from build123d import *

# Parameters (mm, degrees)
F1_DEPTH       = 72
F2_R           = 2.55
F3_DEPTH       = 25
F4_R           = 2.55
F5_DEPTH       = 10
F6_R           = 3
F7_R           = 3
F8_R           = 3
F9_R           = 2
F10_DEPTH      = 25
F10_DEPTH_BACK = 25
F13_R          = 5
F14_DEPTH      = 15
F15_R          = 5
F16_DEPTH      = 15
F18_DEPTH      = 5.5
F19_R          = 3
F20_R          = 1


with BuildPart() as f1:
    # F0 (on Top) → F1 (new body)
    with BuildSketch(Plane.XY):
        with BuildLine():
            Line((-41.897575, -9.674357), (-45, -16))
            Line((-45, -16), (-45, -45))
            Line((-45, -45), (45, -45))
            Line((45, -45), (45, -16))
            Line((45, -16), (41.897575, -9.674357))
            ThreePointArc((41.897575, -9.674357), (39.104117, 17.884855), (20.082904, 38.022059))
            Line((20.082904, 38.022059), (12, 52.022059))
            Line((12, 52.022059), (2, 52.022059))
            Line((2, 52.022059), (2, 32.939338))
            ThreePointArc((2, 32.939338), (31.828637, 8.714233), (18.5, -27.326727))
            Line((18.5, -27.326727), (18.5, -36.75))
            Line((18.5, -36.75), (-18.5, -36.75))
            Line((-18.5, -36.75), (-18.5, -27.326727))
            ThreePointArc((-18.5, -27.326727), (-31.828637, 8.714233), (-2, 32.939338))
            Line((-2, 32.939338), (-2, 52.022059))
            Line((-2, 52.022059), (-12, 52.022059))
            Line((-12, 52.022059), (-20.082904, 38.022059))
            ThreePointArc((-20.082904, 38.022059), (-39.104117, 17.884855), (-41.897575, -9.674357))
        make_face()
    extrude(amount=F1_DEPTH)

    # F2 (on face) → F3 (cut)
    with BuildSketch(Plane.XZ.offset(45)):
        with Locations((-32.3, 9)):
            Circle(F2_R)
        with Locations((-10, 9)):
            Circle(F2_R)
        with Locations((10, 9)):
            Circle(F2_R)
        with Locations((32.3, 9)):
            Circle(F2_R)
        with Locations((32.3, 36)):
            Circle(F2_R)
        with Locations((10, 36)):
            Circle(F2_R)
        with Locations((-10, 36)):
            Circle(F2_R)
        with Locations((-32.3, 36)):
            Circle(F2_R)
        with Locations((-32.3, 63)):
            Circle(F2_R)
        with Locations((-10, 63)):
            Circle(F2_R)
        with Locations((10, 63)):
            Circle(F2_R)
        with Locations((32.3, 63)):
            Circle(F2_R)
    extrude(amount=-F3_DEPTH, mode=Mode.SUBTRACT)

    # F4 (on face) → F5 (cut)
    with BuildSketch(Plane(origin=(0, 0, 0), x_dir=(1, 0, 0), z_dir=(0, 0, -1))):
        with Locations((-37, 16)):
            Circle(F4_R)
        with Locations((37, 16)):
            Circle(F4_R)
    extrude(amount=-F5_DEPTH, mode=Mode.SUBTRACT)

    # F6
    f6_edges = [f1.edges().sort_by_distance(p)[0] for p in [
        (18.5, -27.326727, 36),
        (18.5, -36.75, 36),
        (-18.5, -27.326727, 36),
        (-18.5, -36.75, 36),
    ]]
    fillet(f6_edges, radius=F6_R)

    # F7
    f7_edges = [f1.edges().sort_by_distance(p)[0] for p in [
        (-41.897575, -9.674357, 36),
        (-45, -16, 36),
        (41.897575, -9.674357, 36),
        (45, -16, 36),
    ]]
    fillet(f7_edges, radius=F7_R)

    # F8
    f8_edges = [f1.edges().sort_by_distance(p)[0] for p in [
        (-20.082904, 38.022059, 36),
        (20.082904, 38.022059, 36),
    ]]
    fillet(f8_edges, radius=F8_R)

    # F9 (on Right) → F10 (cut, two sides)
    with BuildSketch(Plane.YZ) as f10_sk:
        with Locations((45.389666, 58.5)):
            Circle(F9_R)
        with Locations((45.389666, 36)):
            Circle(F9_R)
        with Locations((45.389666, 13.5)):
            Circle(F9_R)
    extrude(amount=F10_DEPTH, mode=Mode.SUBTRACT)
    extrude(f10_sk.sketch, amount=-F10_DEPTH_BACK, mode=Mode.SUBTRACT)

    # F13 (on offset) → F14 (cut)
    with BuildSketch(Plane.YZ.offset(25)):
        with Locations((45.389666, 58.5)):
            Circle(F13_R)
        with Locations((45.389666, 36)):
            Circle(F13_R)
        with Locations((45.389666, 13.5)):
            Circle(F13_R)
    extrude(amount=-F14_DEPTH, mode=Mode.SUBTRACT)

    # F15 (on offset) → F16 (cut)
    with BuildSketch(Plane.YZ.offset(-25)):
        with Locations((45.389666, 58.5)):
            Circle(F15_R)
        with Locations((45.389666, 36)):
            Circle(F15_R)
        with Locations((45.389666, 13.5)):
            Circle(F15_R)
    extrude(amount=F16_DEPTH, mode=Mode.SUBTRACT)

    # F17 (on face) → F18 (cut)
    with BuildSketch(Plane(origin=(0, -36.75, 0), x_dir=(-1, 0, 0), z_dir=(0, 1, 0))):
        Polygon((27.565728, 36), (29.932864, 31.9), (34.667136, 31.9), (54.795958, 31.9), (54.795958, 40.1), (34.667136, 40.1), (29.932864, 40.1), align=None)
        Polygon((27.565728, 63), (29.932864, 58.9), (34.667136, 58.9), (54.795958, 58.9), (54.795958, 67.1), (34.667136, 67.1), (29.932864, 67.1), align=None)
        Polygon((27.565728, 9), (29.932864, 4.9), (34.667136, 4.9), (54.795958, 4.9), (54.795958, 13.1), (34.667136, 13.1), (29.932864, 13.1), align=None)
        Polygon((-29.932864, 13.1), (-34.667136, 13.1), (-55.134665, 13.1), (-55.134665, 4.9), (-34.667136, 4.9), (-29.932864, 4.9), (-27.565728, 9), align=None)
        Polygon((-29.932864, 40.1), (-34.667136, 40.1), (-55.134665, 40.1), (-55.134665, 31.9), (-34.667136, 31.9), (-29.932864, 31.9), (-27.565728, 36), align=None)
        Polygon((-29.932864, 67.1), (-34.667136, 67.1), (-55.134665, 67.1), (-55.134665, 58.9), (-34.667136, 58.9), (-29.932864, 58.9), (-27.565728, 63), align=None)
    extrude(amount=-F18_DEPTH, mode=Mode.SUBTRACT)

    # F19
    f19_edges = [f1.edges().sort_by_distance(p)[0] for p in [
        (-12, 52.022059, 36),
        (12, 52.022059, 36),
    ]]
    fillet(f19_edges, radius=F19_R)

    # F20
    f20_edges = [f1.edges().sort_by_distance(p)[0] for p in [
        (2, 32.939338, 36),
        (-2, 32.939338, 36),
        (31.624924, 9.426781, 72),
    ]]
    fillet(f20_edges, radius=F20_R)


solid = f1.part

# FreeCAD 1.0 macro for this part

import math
import FreeCAD as App
import Part
import Sketcher
from FreeCAD import Vector
Q = App.Units.Quantity


def edges_at(feature, points):
    """Names of the edges that pass closest to the given points."""
    edges = feature.Shape.Edges
    near = lambda p: min(range(len(edges)), key=lambda i: edges[i].distToShape(Part.Vertex(*p))[0])
    return sorted({f"Edge{near(p) + 1}" for p in points})


def add_polygon(sketch, points):
    """Adds a closed chain of lines whose ends are joined by coincident constraints."""
    first, n = sketch.GeometryCount, len(points)
    for a, b in zip(points, points[1:] + points[:1]):
        sketch.addGeometry(Part.LineSegment(App.Vector(*a, 0), App.Vector(*b, 0)), False)
    for i in range(n):
        sketch.addConstraint(Sketcher.Constraint("Coincident", first + i, 2, first + (i + 1) % n, 1))

doc = App.newDocument("Part")
body = doc.addObject("PartDesign::Body", "Body")

# Sketch on XY plane
sketch1 = body.newObject("Sketcher::SketchObject", "Sketch")
sketch1.AttachmentSupport = (doc.getObject("XY_Plane"), [""])
sketch1.MapMode = "FlatFace"
sketch1.addGeometry([
    Part.LineSegment(Vector(-42, -10, 0), Vector(-45, -16, 0)),  # 0
    Part.LineSegment(Vector(-45, -16, 0), Vector(-45, -45, 0)),  # 1
    Part.LineSegment(Vector(-45, -45, 0), Vector(45, -45, 0)),  # 2
    Part.LineSegment(Vector(45, -45, 0), Vector(45, -16, 0)),  # 3
    Part.LineSegment(Vector(45, -16, 0), Vector(42, -10, 0)),  # 4
    Part.ArcOfCircle(Part.Circle(Vector(0, 0, 0), Vector(0, 0, 1), 43), math.radians(-13), math.radians(62)),  # 5
    Part.LineSegment(Vector(20, 38, 0), Vector(12, 52, 0)),  # 6
    Part.LineSegment(Vector(12, 52, 0), Vector(2, 52, 0)),  # 7
    Part.LineSegment(Vector(2, 52, 0), Vector(2, 33, 0)),  # 8
    Part.ArcOfCircle(Part.Circle(Vector(0, 0, 0), Vector(0, 0, 1), 33), math.radians(-56), math.radians(87)),  # 9
    Part.LineSegment(Vector(18, -27, 0), Vector(18, -37, 0)),  # 10
    Part.LineSegment(Vector(18, -37, 0), Vector(-18, -37, 0)),  # 11
    Part.LineSegment(Vector(-18, -37, 0), Vector(-18, -27, 0)),  # 12
    Part.ArcOfCircle(Part.Circle(Vector(0, 0, 0), Vector(0, 0, 1), 33), math.radians(93), math.radians(236)),  # 13
    Part.LineSegment(Vector(-2, 33, 0), Vector(-2, 52, 0)),  # 14
    Part.LineSegment(Vector(-2, 52, 0), Vector(-12, 52, 0)),  # 15
    Part.LineSegment(Vector(-12, 52, 0), Vector(-20, 38, 0)),  # 16
    Part.ArcOfCircle(Part.Circle(Vector(0, 0, 0), Vector(0, 0, 1), 43), math.radians(118), math.radians(193)),  # 17
], False)
sketch1.addConstraint([
    Sketcher.Constraint("Coincident", 0, 2, 1, 1),
    Sketcher.Constraint("Coincident", 1, 2, 2, 1),
    Sketcher.Constraint("Coincident", 2, 2, 3, 1),
    Sketcher.Constraint("Coincident", 3, 2, 4, 1),
    Sketcher.Constraint("Coincident", 4, 2, 5, 1),
    Sketcher.Constraint("Coincident", 5, 2, 6, 1),
    Sketcher.Constraint("Coincident", 6, 2, 7, 1),
    Sketcher.Constraint("Coincident", 7, 2, 8, 1),
    Sketcher.Constraint("Coincident", 8, 2, 9, 2),
    Sketcher.Constraint("Coincident", 9, 1, 10, 1),
    Sketcher.Constraint("Coincident", 10, 2, 11, 1),
    Sketcher.Constraint("Coincident", 11, 2, 12, 1),
    Sketcher.Constraint("Coincident", 12, 2, 13, 2),
    Sketcher.Constraint("Coincident", 13, 1, 14, 1),
    Sketcher.Constraint("Coincident", 14, 2, 15, 1),
    Sketcher.Constraint("Coincident", 15, 2, 16, 1),
    Sketcher.Constraint("Coincident", 16, 2, 17, 1),
    Sketcher.Constraint("Coincident", 17, 2, 0, 1),
    Sketcher.Constraint("Vertical", 1),
    Sketcher.Constraint("Horizontal", 2),
    Sketcher.Constraint("Vertical", 3),
    Sketcher.Constraint("Horizontal", 7),
    Sketcher.Constraint("Vertical", 8),
    Sketcher.Constraint("Vertical", 10),
    Sketcher.Constraint("Horizontal", 11),
    Sketcher.Constraint("Vertical", 12),
    Sketcher.Constraint("Vertical", 14),
    Sketcher.Constraint("Horizontal", 15),
    Sketcher.Constraint("Coincident", 5, 3, -1, 1),
    Sketcher.Constraint("Coincident", 9, 3, -1, 1),
    Sketcher.Constraint("Coincident", 13, 3, -1, 1),
    Sketcher.Constraint("Coincident", 17, 3, -1, 1),
    Sketcher.Constraint("Equal", 9, 13),
    Sketcher.Constraint("Equal", 5, 17),
    Sketcher.Constraint("Symmetric", 0, 2, 3, 2, -2),
    Sketcher.Constraint("Symmetric", 7, 2, 14, 2, -2),
    Sketcher.Constraint("Horizontal", 9, 1, 12, 2),
    Sketcher.Constraint("Horizontal", 5, 2, 16, 2),
    Sketcher.Constraint("Horizontal", 4, 2, 17, 2),
    Sketcher.Constraint("Equal", 7, 15),
    Sketcher.Constraint("Radius", 5, Q("42.999999 mm")),
    Sketcher.Constraint("Radius", 9, Q("33 mm")),
    Sketcher.Constraint("DistanceX", 2, 1, 2, 2, Q("90 mm")),
    Sketcher.Constraint("DistanceX", 7, 2, 7, 1, Q("10 mm")),
    Sketcher.Constraint("DistanceX", 11, 2, 11, 1, Q("37 mm")),
    Sketcher.Constraint("DistanceY", 1, 2, 1, 1, Q("29 mm")),
    Sketcher.Constraint("Angle", 6, Q("120.000001 deg")),
    Sketcher.Constraint("DistanceY", 0, 2, -1, 1, Q("16 mm")),
    Sketcher.Constraint("DistanceX", -1, 1, 6, 2, Q("12 mm")),
    Sketcher.Constraint("DistanceY", 5, 2, 6, 2, Q("14 mm")),
    Sketcher.Constraint("DistanceY", 10, 2, -1, 1, Q("36.75 mm")),
    Sketcher.Constraint("Distance", 0, Q("7.045481 mm")),
])
pad1 = body.newObject("PartDesign::Pad", "Pad")
pad1.Profile = sketch1
pad1.Length = 72

# Sketch on XZ plane
sketch2 = body.newObject("Sketcher::SketchObject", "Sketch001")
sketch2.AttachmentSupport = (doc.getObject("XZ_Plane"), [""])
sketch2.MapMode = "FlatFace"
sketch2.AttachmentOffset = App.Placement(Vector(0, 0, 45), App.Rotation())
sketch2.addGeometry([
    Part.Circle(Vector(-32.3, 9, 0), Vector(0, 0, 1), 2.5),  # 0
    Part.Circle(Vector(-10, 9, 0), Vector(0, 0, 1), 2.5),  # 1
    Part.Circle(Vector(10, 9, 0), Vector(0, 0, 1), 2.5),  # 2
    Part.Circle(Vector(32.3, 9, 0), Vector(0, 0, 1), 2.5),  # 3
    Part.Circle(Vector(32.3, 36, 0), Vector(0, 0, 1), 2.5),  # 4
    Part.Circle(Vector(10, 36, 0), Vector(0, 0, 1), 2.5),  # 5
    Part.Circle(Vector(-10, 36, 0), Vector(0, 0, 1), 2.5),  # 6
    Part.Circle(Vector(-32.3, 36, 0), Vector(0, 0, 1), 2.5),  # 7
    Part.Circle(Vector(-32.3, 63, 0), Vector(0, 0, 1), 2.5),  # 8
    Part.Circle(Vector(-10, 63, 0), Vector(0, 0, 1), 2.5),  # 9
    Part.Circle(Vector(10, 63, 0), Vector(0, 0, 1), 2.5),  # 10
    Part.Circle(Vector(32.3, 63, 0), Vector(0, 0, 1), 2.5),  # 11
], False)
sketch2.addConstraint([
    Sketcher.Constraint("Equal", 0, 1),
    Sketcher.Constraint("Equal", 1, 2),
    Sketcher.Constraint("Equal", 2, 3),
    Sketcher.Constraint("Equal", 3, 4),
    Sketcher.Constraint("Equal", 4, 5),
    Sketcher.Constraint("Equal", 5, 6),
    Sketcher.Constraint("Equal", 6, 7),
    Sketcher.Constraint("Equal", 7, 8),
    Sketcher.Constraint("Equal", 8, 9),
    Sketcher.Constraint("Equal", 9, 10),
    Sketcher.Constraint("Equal", 10, 11),
    Sketcher.Constraint("Symmetric", 1, 3, 2, 3, -2),
    Sketcher.Constraint("Symmetric", 0, 3, 3, 3, -2),
    Sketcher.Constraint("Symmetric", 5, 3, 6, 3, -2),
    Sketcher.Constraint("Symmetric", 4, 3, 7, 3, -2),
    Sketcher.Constraint("Symmetric", 9, 3, 10, 3, -2),
    Sketcher.Constraint("Symmetric", 8, 3, 11, 3, -2),
    Sketcher.Constraint("Horizontal", 0, 3, 1, 3),
    Sketcher.Constraint("Horizontal", 4, 3, 5, 3),
    Sketcher.Constraint("Horizontal", 8, 3, 9, 3),
    Sketcher.Constraint("Vertical", 3, 3, 4, 3),
    Sketcher.Constraint("Vertical", 2, 3, 5, 3),
    Sketcher.Constraint("Vertical", 7, 3, 8, 3),
    Sketcher.Constraint("Vertical", 6, 3, 9, 3),
    Sketcher.Constraint("Diameter", 0, Q("5.1 mm")),
    Sketcher.Constraint("DistanceY", -1, 1, 0, 3, Q("9 mm")),
    Sketcher.Constraint("DistanceX", 1, 3, -1, 1, Q("10 mm")),
    Sketcher.Constraint("DistanceY", -1, 1, 4, 3, Q("36 mm")),
    Sketcher.Constraint("DistanceY", -1, 1, 8, 3, Q("63 mm")),
    Sketcher.Constraint("DistanceX", 0, 3, -1, 1, Q("32.3 mm")),
])
pocket1 = body.newObject("PartDesign::Pocket", "Pocket")
pocket1.Profile = sketch2
pocket1.Length = 25

# Sketch on XY plane
sketch3 = body.newObject("Sketcher::SketchObject", "Sketch002")
sketch3.AttachmentSupport = (doc.getObject("XY_Plane"), [""])
sketch3.MapMode = "FlatFace"
sketch3.addGeometry([
    Part.Circle(Vector(-37, -16, 0), Vector(0, 0, 1), 2.5),
    Part.Circle(Vector(37, -16, 0), Vector(0, 0, 1), 2.5),
], False)
sketch3.addConstraint([
    Sketcher.Constraint("Equal", 0, 1),
    Sketcher.Constraint("Symmetric", 0, 3, 1, 3, -2),
    Sketcher.Constraint("Diameter", 0, Q("5.1 mm")),
    Sketcher.Constraint("DistanceX", 0, 3, -1, 1, Q("37 mm")),
    Sketcher.Constraint("DistanceY", 0, 3, -1, 1, Q("16 mm")),
])
pocket2 = body.newObject("PartDesign::Pocket", "Pocket001")
pocket2.Profile = sketch3
pocket2.Length = 10
pocket2.Reversed = True
doc.recompute()

fillet = body.newObject("PartDesign::Fillet", "Fillet")
fillet.Base = (pocket2, edges_at(pocket2, [
    (18.5, -27.327, 36),
    (18.5, -36.75, 36),
    (-18.5, -27.327, 36),
    (-18.5, -36.75, 36),
]))
fillet.Radius = 3
doc.recompute()

fillet2 = body.newObject("PartDesign::Fillet", "Fillet001")
fillet2.Base = (fillet, edges_at(fillet, [
    (-41.898, -9.674, 36),
    (-45, -16, 36),
    (41.898, -9.674, 36),
    (45, -16, 36),
]))
fillet2.Radius = 3
doc.recompute()

fillet3 = body.newObject("PartDesign::Fillet", "Fillet002")
fillet3.Base = (fillet2, edges_at(fillet2, [(-20.083, 38.022, 36), (20.083, 38.022, 36)]))
fillet3.Radius = 3

# Sketch on YZ plane
sketch4 = body.newObject("Sketcher::SketchObject", "Sketch003")
sketch4.AttachmentSupport = (doc.getObject("YZ_Plane"), [""])
sketch4.MapMode = "FlatFace"
sketch4.addGeometry([
    Part.Circle(Vector(45.4, 58.5, 0), Vector(0, 0, 1), 2),
    Part.Circle(Vector(45.4, 36, 0), Vector(0, 0, 1), 2),
    Part.Circle(Vector(45.4, 13.5, 0), Vector(0, 0, 1), 2),
], False)
sketch4.addConstraint([
    Sketcher.Constraint("Equal", 0, 1),
    Sketcher.Constraint("Equal", 1, 2),
    Sketcher.Constraint("Vertical", 0, 3, 1, 3),
    Sketcher.Constraint("Vertical", 1, 3, 2, 3),
    Sketcher.Constraint("Diameter", 0, Q("4 mm")),
    Sketcher.Constraint("DistanceY", -1, 1, 1, 3, Q("36 mm")),
    Sketcher.Constraint("DistanceY", 2, 3, 0, 3, Q("45 mm")),
    Sketcher.Constraint("DistanceY", -1, 1, 0, 3, Q("58.5 mm")),
    Sketcher.Constraint("DistanceX", -1, 1, 0, 3, Q("45.389666 mm")),
])
pocket3 = body.newObject("PartDesign::Pocket", "Pocket002")
pocket3.Profile = sketch4
pocket3.Type = "ThroughAll"
pocket3.Midplane = True

# Sketch on YZ plane
sketch5 = body.newObject("Sketcher::SketchObject", "Sketch004")
sketch5.AttachmentSupport = (doc.getObject("YZ_Plane"), [""])
sketch5.MapMode = "FlatFace"
sketch5.AttachmentOffset = App.Placement(Vector(0, 0, 25), App.Rotation())
sketch5.addGeometry([
    Part.Circle(Vector(45, 58, 0), Vector(0, 0, 1), 5),
    Part.Circle(Vector(45, 36, 0), Vector(0, 0, 1), 5),
    Part.Circle(Vector(45, 14, 0), Vector(0, 0, 1), 5),
], False)
sketch5.addConstraint([
    Sketcher.Constraint("Equal", 0, 1),
    Sketcher.Constraint("Equal", 1, 2),
    Sketcher.Constraint("Vertical", 0, 3, 1, 3),
    Sketcher.Constraint("Vertical", 1, 3, 2, 3),
    Sketcher.Constraint("Diameter", 0, Q("10 mm")),
    Sketcher.Constraint("DistanceY", -1, 1, 1, 3, Q("36 mm")),
    Sketcher.Constraint("DistanceY", 2, 3, 0, 3, Q("45 mm")),
    Sketcher.Constraint("DistanceY", -1, 1, 0, 3, Q("58.5 mm")),
    Sketcher.Constraint("DistanceX", -1, 1, 0, 3, Q("45.389666 mm")),
])
pocket4 = body.newObject("PartDesign::Pocket", "Pocket003")
pocket4.Profile = sketch5
pocket4.Length = 15

# Sketch on YZ plane
sketch6 = body.newObject("Sketcher::SketchObject", "Sketch005")
sketch6.AttachmentSupport = (doc.getObject("YZ_Plane"), [""])
sketch6.MapMode = "FlatFace"
sketch6.AttachmentOffset = App.Placement(Vector(0, 0, -25), App.Rotation())
sketch6.addGeometry([
    Part.Circle(Vector(45, 58, 0), Vector(0, 0, 1), 5),
    Part.Circle(Vector(45, 36, 0), Vector(0, 0, 1), 5),
    Part.Circle(Vector(45, 14, 0), Vector(0, 0, 1), 5),
], False)
sketch6.addConstraint([
    Sketcher.Constraint("Equal", 0, 1),
    Sketcher.Constraint("Equal", 1, 2),
    Sketcher.Constraint("Vertical", 0, 3, 1, 3),
    Sketcher.Constraint("Vertical", 1, 3, 2, 3),
    Sketcher.Constraint("Diameter", 0, Q("10 mm")),
    Sketcher.Constraint("DistanceY", -1, 1, 1, 3, Q("36 mm")),
    Sketcher.Constraint("DistanceY", 2, 3, 0, 3, Q("45 mm")),
    Sketcher.Constraint("DistanceY", -1, 1, 0, 3, Q("58.5 mm")),
    Sketcher.Constraint("DistanceX", -1, 1, 0, 3, Q("45.389666 mm")),
])
pocket5 = body.newObject("PartDesign::Pocket", "Pocket004")
pocket5.Profile = sketch6
pocket5.Length = 15
pocket5.Reversed = True

# Sketch on XZ plane
sketch7 = body.newObject("Sketcher::SketchObject", "Sketch006")
sketch7.AttachmentSupport = (doc.getObject("XZ_Plane"), [""])
sketch7.MapMode = "FlatFace"
sketch7.AttachmentOffset = App.Placement(Vector(0, 0, 36.75), App.Rotation())
add_polygon(sketch7, [(-27.6, 36), (-29.9, 31.9), (-54.8, 31.9), (-54.8, 40.1), (-29.9, 40.1)])  # lines 0-4
add_polygon(sketch7, [(-27.6, 63), (-29.9, 58.9), (-54.8, 58.9), (-54.8, 67.1), (-29.9, 67.1)])  # lines 5-9
add_polygon(sketch7, [(-27.6, 9), (-29.9, 4.9), (-54.8, 4.9), (-54.8, 13.1), (-29.9, 13.1)])  # lines 10-14
add_polygon(sketch7, [(29.9, 13.1), (55.1, 13.1), (55.1, 4.9), (29.9, 4.9), (27.6, 9)])  # lines 15-19
add_polygon(sketch7, [(29.9, 40.1), (55.1, 40.1), (55.1, 31.9), (29.9, 31.9), (27.6, 36)])  # lines 20-24
add_polygon(sketch7, [(29.9, 67.1), (55.1, 67.1), (55.1, 58.9), (29.9, 58.9), (27.6, 63)])  # lines 25-29
sketch7.addConstraint([
    Sketcher.Constraint("Horizontal", 1),
    Sketcher.Constraint("Vertical", 2),
    Sketcher.Constraint("Horizontal", 3),
    Sketcher.Constraint("Horizontal", 6),
    Sketcher.Constraint("Vertical", 7),
    Sketcher.Constraint("Horizontal", 8),
    Sketcher.Constraint("Horizontal", 11),
    Sketcher.Constraint("Vertical", 12),
    Sketcher.Constraint("Horizontal", 13),
    Sketcher.Constraint("Horizontal", 15),
    Sketcher.Constraint("Vertical", 16),
    Sketcher.Constraint("Horizontal", 17),
    Sketcher.Constraint("Horizontal", 20),
    Sketcher.Constraint("Vertical", 21),
    Sketcher.Constraint("Horizontal", 22),
    Sketcher.Constraint("Horizontal", 25),
    Sketcher.Constraint("Vertical", 26),
    Sketcher.Constraint("Horizontal", 27),
    Sketcher.Constraint("Symmetric", 10, 2, 17, 2, -2),
    Sketcher.Constraint("Symmetric", 14, 2, 18, 2, -2),
    Sketcher.Constraint("Symmetric", 13, 2, 19, 2, -2),
    Sketcher.Constraint("Symmetric", 0, 2, 22, 2, -2),
    Sketcher.Constraint("Symmetric", 4, 2, 23, 2, -2),
    Sketcher.Constraint("Symmetric", 3, 2, 24, 2, -2),
    Sketcher.Constraint("Symmetric", 5, 2, 27, 2, -2),
    Sketcher.Constraint("Symmetric", 9, 2, 28, 2, -2),
    Sketcher.Constraint("Symmetric", 8, 2, 29, 2, -2),
    Sketcher.Constraint("Parallel", 0, 5),
    Sketcher.Constraint("Parallel", 4, 9),
    Sketcher.Constraint("Parallel", 5, 10),
    Sketcher.Constraint("Parallel", 9, 14),
    Sketcher.Constraint("Parallel", 14, 18),
    Sketcher.Constraint("Vertical", 0, 2, 3, 2),
    Sketcher.Constraint("Vertical", 3, 2, 5, 2),
    Sketcher.Constraint("Vertical", 2, 2, 6, 2),
    Sketcher.Constraint("Vertical", 5, 2, 8, 2),
    Sketcher.Constraint("Vertical", 4, 2, 9, 2),
    Sketcher.Constraint("Vertical", 8, 2, 10, 2),
    Sketcher.Constraint("Vertical", 7, 2, 11, 2),
    Sketcher.Constraint("Vertical", 10, 2, 13, 2),
    Sketcher.Constraint("Vertical", 9, 2, 14, 2),
    Sketcher.Constraint("Vertical", 16, 2, 20, 2),
    Sketcher.Constraint("Vertical", 21, 2, 25, 2),
    Sketcher.Constraint("Angle", 0, Q("-119.999999 deg")),
    Sketcher.Constraint("DistanceY", 2, 1, 2, 2, Q("8.2 mm")),
    Sketcher.Constraint("DistanceY", -1, 1, 4, 2, Q("36 mm")),
    Sketcher.Constraint("DistanceY", -1, 1, 9, 2, Q("63 mm")),
    Sketcher.Constraint("DistanceY", -1, 1, 14, 2, Q("9 mm")),
    Sketcher.Constraint("DistanceX", 15, 1, 15, 2, Q("25.201801 mm")),
    Sketcher.Constraint("DistanceX", 1, 2, 1, 1, Q("24.863094 mm")),
    Sketcher.Constraint("DistanceX", 4, 2, -1, 1, Q("27.565728 mm")),
])
pocket6 = body.newObject("PartDesign::Pocket", "Pocket005")
pocket6.Profile = sketch7
pocket6.Length = 5.5
pocket6.Reversed = True
doc.recompute()

fillet4 = body.newObject("PartDesign::Fillet", "Fillet003")
fillet4.Base = (pocket6, edges_at(pocket6, [(-12, 52.022, 36), (12, 52.022, 36)]))
fillet4.Radius = 3
doc.recompute()

fillet5 = body.newObject("PartDesign::Fillet", "Fillet004")
fillet5.Base = (fillet4, edges_at(fillet4, [(2, 32.939, 36), (-2, 32.939, 36), (31.625, 9.427, 72)]))
fillet5.Radius = 1

doc.recompute()
